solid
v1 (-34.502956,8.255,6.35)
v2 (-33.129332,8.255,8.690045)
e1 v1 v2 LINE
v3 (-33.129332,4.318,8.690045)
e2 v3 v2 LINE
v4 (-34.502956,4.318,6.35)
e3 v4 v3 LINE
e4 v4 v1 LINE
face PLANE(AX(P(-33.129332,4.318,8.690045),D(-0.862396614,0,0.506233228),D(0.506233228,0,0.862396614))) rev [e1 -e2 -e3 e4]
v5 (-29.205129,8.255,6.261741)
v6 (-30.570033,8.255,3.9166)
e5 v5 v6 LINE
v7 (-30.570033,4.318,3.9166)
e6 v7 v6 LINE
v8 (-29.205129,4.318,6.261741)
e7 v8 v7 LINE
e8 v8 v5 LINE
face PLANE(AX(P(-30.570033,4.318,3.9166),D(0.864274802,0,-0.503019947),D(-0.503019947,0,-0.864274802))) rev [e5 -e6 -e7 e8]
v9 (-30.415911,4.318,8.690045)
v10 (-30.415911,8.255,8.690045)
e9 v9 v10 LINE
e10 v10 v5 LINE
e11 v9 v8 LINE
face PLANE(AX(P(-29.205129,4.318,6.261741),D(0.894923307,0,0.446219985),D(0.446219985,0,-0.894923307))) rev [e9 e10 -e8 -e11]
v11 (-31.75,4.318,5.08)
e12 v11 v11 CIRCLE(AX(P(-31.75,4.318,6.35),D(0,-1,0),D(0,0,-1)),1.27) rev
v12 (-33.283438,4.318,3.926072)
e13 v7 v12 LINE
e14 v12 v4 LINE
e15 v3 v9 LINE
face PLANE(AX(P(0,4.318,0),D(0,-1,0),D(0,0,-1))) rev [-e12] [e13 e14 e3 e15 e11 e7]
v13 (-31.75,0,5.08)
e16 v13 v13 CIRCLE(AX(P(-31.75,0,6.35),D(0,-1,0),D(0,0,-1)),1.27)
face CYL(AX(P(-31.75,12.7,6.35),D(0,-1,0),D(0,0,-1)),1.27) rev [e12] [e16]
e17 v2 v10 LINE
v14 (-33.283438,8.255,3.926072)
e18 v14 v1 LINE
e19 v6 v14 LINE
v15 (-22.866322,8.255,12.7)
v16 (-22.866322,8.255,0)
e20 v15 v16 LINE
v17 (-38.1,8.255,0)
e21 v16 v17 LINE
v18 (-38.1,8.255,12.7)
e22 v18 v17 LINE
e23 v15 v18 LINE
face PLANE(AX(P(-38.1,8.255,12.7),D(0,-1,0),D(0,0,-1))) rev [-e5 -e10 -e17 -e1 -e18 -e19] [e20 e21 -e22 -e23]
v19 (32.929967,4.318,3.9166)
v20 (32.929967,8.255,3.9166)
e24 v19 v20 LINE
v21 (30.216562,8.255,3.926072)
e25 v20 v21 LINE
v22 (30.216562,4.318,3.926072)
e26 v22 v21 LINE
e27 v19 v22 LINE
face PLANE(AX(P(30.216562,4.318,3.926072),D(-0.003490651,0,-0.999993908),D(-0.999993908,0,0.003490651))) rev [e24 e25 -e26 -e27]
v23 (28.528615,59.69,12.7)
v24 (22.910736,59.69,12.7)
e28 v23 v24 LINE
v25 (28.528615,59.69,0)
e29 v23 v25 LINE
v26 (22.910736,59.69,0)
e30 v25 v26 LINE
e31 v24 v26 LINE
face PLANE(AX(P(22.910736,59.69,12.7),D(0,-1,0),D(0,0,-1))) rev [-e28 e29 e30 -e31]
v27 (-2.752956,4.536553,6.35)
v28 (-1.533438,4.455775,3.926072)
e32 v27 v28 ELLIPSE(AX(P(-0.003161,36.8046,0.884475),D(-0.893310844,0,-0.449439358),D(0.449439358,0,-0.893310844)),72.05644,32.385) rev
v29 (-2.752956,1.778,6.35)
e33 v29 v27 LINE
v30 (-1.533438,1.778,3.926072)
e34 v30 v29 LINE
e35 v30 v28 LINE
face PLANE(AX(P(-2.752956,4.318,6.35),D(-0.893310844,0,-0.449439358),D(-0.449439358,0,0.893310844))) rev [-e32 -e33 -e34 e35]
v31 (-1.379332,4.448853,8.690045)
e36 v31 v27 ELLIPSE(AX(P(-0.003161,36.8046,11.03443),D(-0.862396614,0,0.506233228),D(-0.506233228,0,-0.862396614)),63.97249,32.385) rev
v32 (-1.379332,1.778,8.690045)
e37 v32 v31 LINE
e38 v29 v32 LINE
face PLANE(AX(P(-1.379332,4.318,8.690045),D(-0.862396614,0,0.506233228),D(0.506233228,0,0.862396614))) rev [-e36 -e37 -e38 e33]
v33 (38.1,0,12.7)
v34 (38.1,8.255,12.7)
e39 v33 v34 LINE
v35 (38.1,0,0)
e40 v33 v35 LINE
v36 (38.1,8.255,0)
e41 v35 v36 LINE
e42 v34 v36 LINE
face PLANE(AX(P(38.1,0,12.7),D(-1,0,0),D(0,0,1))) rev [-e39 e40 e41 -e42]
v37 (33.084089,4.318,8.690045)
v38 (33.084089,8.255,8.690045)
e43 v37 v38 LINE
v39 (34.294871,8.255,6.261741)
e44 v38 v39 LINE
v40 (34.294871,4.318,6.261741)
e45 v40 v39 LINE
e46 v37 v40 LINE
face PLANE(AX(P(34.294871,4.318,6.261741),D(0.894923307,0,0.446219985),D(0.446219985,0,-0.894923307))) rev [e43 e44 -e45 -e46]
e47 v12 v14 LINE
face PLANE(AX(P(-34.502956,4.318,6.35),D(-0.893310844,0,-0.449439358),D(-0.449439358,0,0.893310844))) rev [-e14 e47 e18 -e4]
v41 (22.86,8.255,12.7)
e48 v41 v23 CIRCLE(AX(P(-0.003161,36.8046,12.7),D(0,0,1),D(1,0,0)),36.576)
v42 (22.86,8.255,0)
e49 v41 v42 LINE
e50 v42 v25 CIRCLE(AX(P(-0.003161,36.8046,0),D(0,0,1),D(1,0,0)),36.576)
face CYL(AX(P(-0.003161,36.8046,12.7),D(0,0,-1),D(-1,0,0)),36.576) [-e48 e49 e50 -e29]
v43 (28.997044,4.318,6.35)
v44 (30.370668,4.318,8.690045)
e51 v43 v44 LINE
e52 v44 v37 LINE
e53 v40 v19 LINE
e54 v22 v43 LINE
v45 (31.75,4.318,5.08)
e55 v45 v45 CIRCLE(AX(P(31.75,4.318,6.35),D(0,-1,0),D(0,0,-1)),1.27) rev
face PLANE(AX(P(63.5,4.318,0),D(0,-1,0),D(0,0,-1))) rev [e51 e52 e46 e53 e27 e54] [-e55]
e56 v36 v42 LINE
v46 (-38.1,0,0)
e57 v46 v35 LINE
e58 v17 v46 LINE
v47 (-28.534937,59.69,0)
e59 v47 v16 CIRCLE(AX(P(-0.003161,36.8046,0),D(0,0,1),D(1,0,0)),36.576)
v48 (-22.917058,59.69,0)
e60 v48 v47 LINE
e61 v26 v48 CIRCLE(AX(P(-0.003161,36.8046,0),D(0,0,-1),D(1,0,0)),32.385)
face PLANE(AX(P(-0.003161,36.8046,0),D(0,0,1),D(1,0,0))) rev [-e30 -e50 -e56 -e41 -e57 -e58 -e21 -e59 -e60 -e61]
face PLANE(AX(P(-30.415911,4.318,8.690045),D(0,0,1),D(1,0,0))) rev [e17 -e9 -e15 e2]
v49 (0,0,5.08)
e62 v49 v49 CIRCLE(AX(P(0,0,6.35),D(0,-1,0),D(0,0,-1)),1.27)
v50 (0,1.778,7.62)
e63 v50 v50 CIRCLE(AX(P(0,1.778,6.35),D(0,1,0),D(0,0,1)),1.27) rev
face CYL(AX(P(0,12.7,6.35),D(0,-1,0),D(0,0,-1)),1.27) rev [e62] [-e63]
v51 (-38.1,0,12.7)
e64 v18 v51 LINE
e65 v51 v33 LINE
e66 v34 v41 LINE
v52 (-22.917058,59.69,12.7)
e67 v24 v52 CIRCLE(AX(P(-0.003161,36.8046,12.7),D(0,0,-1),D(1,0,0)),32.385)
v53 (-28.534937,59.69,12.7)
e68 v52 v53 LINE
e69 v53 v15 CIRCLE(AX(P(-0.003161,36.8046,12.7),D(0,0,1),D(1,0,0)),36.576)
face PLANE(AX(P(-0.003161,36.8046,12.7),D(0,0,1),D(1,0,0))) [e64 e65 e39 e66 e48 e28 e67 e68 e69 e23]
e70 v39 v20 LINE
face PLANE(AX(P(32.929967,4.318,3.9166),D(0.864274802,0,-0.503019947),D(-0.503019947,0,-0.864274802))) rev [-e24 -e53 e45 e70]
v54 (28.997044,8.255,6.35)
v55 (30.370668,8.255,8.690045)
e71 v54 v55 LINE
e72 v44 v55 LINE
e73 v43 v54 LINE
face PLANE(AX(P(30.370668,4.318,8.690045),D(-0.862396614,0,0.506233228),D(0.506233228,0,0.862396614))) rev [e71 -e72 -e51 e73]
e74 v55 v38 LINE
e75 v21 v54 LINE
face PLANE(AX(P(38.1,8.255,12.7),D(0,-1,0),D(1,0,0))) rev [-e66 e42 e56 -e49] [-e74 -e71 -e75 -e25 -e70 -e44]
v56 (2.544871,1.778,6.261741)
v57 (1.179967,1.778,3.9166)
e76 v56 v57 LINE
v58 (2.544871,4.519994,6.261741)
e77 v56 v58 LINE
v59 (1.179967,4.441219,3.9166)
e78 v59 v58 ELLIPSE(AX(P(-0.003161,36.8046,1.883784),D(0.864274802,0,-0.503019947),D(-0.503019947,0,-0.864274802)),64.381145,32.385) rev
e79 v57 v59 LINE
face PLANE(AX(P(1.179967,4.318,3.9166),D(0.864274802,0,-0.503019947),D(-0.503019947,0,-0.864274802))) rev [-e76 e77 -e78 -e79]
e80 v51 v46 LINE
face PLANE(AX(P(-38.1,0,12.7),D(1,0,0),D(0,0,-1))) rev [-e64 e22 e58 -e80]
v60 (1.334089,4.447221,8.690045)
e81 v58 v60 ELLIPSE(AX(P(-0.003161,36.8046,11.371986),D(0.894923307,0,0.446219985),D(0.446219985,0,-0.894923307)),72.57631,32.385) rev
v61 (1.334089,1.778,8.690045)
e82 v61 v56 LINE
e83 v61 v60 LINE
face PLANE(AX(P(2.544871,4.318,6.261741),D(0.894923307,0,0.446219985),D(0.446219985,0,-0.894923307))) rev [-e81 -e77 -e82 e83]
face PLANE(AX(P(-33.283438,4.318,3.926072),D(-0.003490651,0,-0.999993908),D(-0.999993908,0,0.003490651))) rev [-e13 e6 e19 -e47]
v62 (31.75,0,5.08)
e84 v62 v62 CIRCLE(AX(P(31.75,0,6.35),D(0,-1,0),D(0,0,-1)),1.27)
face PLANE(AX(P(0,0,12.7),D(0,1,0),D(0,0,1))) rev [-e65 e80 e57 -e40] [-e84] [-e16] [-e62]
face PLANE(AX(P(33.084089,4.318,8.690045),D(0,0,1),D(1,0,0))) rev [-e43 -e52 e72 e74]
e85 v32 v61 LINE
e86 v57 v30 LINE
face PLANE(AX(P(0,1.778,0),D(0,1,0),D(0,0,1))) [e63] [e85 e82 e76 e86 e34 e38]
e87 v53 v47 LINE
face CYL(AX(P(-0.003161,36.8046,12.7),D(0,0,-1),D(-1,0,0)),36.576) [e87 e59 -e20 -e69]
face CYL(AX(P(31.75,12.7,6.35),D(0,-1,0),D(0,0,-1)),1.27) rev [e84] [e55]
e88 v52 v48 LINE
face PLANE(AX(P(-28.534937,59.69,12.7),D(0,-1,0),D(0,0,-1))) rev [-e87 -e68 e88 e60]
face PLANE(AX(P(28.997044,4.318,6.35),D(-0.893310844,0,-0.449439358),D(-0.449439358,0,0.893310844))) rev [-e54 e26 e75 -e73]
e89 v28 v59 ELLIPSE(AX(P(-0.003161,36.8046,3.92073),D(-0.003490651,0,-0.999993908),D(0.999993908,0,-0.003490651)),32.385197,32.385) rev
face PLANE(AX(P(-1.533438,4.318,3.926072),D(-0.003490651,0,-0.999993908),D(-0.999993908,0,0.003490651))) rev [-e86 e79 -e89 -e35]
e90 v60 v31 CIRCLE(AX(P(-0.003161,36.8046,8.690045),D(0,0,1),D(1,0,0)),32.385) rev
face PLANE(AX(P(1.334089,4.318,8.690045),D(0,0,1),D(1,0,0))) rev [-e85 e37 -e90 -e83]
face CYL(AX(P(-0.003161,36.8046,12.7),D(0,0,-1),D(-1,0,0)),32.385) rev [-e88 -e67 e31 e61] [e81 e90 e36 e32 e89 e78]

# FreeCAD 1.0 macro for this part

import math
import FreeCAD as App
import Part
import Sketcher

V = App.Vector
Q = App.Units.Quantity

doc = App.newDocument("Part")
params = doc.addObject("Spreadsheet::Sheet", "Params")
for row, (alias, value) in enumerate([
    ("sketch1_width", "3 in"),
    ("sketch1_radius", "1.44 in"),
    ("sketch1_width2", "0.6 in"),
    ("sketch1_radius2", "1.275 in"),
    ("sketch1_height", "0.325 in"),
    ("pad1_length", "0.5 in"),
    ("sketch2_diameter", "0.1 in"),
    ("pocket1_length", "0.5 in"),
    ("pocket2_length", "0.155 in"),
    ("linearpattern_pitch", "1.25 in"),
    ("pocket3_length", "0.1 in"),
], start=1):
    params.set(f"A{row}", alias)
    params.set(f"B{row}", "=" + value)
    params.setAlias(f"B{row}", alias)

body = doc.addObject("PartDesign::Body", "Body")

sketch1 = body.newObject("Sketcher::SketchObject", "Sketch")
sketch1.AttachmentSupport = (doc.getObject("XY_Plane"), [""])
sketch1.MapMode = "FlatFace"
sketch1.addGeometry([
    Part.LineSegment(V(38, 0, 0), V(38, 8, 0)),
    Part.LineSegment(V(38, 8, 0), V(23, 8, 0)),
    Part.ArcOfCircle(Part.Circle(V(0, 37, 0), V(0, 0, 1), 37), math.radians(-51), math.radians(39)),
    Part.LineSegment(V(29, 60, 0), V(23, 60, 0)),
    Part.ArcOfCircle(Part.Circle(V(0, 37, 0), V(0, 0, 1), 32), math.radians(135), math.radians(405)),
    Part.LineSegment(V(-23, 60, 0), V(-29, 60, 0)),
    Part.ArcOfCircle(Part.Circle(V(0, 37, 0), V(0, 0, 1), 37), math.radians(141), math.radians(231)),
    Part.LineSegment(V(-23, 8, 0), V(-38, 8, 0)),
    Part.LineSegment(V(-38, 8, 0), V(-38, 0, 0)),
    Part.LineSegment(V(-38, 0, 0), V(38, 0, 0)),
], False)
sketch1.addConstraint([
    Sketcher.Constraint("Coincident", 0, 2, 1, 1),
    Sketcher.Constraint("Coincident", 1, 2, 2, 1),
    Sketcher.Constraint("Coincident", 2, 2, 3, 1),
    Sketcher.Constraint("Coincident", 3, 2, 4, 2),
    Sketcher.Constraint("Coincident", 4, 1, 5, 1),
    Sketcher.Constraint("Coincident", 5, 2, 6, 1),
    Sketcher.Constraint("Coincident", 6, 2, 7, 1),
    Sketcher.Constraint("Coincident", 7, 2, 8, 1),
    Sketcher.Constraint("Coincident", 8, 2, 9, 1),
    Sketcher.Constraint("Coincident", 9, 2, 0, 1),
    Sketcher.Constraint("Vertical", 0),
    Sketcher.Constraint("Horizontal", 1),
    Sketcher.Constraint("Horizontal", 3),
    Sketcher.Constraint("Horizontal", 5),
    Sketcher.Constraint("Horizontal", 7),
    Sketcher.Constraint("Vertical", 8),
    Sketcher.Constraint("Horizontal", 9),
    Sketcher.Constraint("Coincident", 4, 3, 2, 3),
    Sketcher.Constraint("Coincident", 6, 3, 2, 3),
    Sketcher.Constraint("Equal", 2, 6),
    Sketcher.Constraint("Symmetric", 8, 2, 9, 2, -1, 1),
    Sketcher.Constraint("Horizontal", 3, 2, 4, 1),
    Sketcher.Constraint("Horizontal", 1, 2, 6, 2),
    Sketcher.Constraint("DistanceX", 9, 1, 9, 2, Q("3 in")),
    Sketcher.Constraint("Radius", 2, Q("1.44 in")),
    Sketcher.Constraint("DistanceX", 1, 2, 1, 1, Q("0.6 in")),
    Sketcher.Constraint("Radius", 4, Q("1.275 in")),
    Sketcher.Constraint("DistanceY", 0, 1, 0, 2, Q("0.325 in")),
    Sketcher.Constraint("DistanceY", -1, 1, 2, 2, Q("2.35 in")),
    Sketcher.Constraint("DistanceY", -1, 1, 2, 3, Q("1.449 in")),
])
sketch1.setExpression("Constraints[23]", "Params.sketch1_width")
sketch1.setExpression("Constraints[24]", "Params.sketch1_radius")
sketch1.setExpression("Constraints[25]", "Params.sketch1_width2")
sketch1.setExpression("Constraints[26]", "Params.sketch1_radius2")
sketch1.setExpression("Constraints[27]", "Params.sketch1_height")
pad1 = body.newObject("PartDesign::Pad", "Pad")
pad1.Profile = sketch1
pad1.setExpression("Length", "Params.pad1_length")

sketch2 = body.newObject("Sketcher::SketchObject", "Sketch001")
sketch2.AttachmentSupport = (doc.getObject("XZ_Plane"), [""])
sketch2.MapMode = "FlatFace"
sketch2.addGeometry([
    Part.Circle(V(0, 6.3, 0), V(0, 0, 1), 1.3),
    Part.Circle(V(31.8, 6.3, 0), V(0, 0, 1), 1.3),
    Part.Circle(V(-31.8, 6.3, 0), V(0, 0, 1), 1.3),
], False)
sketch2.addConstraint([
    Sketcher.Constraint("Equal", 0, 1),
    Sketcher.Constraint("Equal", 1, 2),
    Sketcher.Constraint("Symmetric", 1, 3, 2, 3, -2),
    Sketcher.Constraint("PointOnObject", 0, 3, -2),
    Sketcher.Constraint("Horizontal", 0, 3, 1, 3),
    Sketcher.Constraint("Diameter", 0, Q("0.1 in")),
    Sketcher.Constraint("DistanceX", 2, 3, 1, 3, Q("2.5 in")),
    Sketcher.Constraint("DistanceY", -1, 1, 0, 3, Q("0.25 in")),
])
sketch2.setExpression("Constraints[5]", "Params.sketch2_diameter")
pocket1 = body.newObject("PartDesign::Pocket", "Pocket")
pocket1.Profile = sketch2
pocket1.setExpression("Length", "Params.pocket1_length")

sketch3 = body.newObject("Sketcher::SketchObject", "Sketch002")
sketch3.AttachmentSupport = (doc.getObject("XZ_Plane"), [""])
sketch3.MapMode = "FlatFace"
sketch3.AttachmentOffset = App.Placement(V(0, 0, -0.325 * 25.4), App.Rotation())
sketch3.addGeometry([
    Part.LineSegment(V(-33.1, 8.7, 0), V(-30.4, 8.7, 0)),
    Part.LineSegment(V(-30.4, 8.7, 0), V(-29.2, 6.3, 0)),
    Part.LineSegment(V(-29.2, 6.3, 0), V(-30.6, 3.9, 0)),
    Part.LineSegment(V(-30.6, 3.9, 0), V(-33.3, 3.9, 0)),
    Part.LineSegment(V(-33.3, 3.9, 0), V(-34.5, 6.3, 0)),
    Part.LineSegment(V(-34.5, 6.3, 0), V(-33.1, 8.7, 0)),
], False)
sketch3.addConstraint([
    Sketcher.Constraint("Coincident", 0, 2, 1, 1),
    Sketcher.Constraint("Coincident", 1, 2, 2, 1),
    Sketcher.Constraint("Coincident", 2, 2, 3, 1),
    Sketcher.Constraint("Coincident", 3, 2, 4, 1),
    Sketcher.Constraint("Coincident", 4, 2, 5, 1),
    Sketcher.Constraint("Coincident", 5, 2, 0, 1),
    Sketcher.Constraint("Horizontal", 0),
    Sketcher.Constraint("Equal", 1, 2),
    Sketcher.Constraint("Equal", 2, 3),
    Sketcher.Constraint("Equal", 3, 4),
    Sketcher.Constraint("Equal", 4, 5),
    Sketcher.Constraint("Angle", 2, Q("-120.2 deg")),
    Sketcher.Constraint("Angle", 3, Q("179.8 deg")),
    Sketcher.Constraint("DistanceY", -1, 1, 4, 2, Q("0.25 in")),
    Sketcher.Constraint("DistanceX", 0, 1, 0, 2, 2.713421),
    Sketcher.Constraint("DistanceY", -1, 1, 2, 2, 3.9166),
    Sketcher.Constraint("DistanceX", 5, 2, 2, 2, 2.559299),
    Sketcher.Constraint("DistanceX", 0, 2, -1, 1, 30.415911),
])
pocket2 = body.newObject("PartDesign::Pocket", "Pocket001")
pocket2.Profile = sketch3
pocket2.setExpression("Length", "Params.pocket2_length")
pocket2.Reversed = True
doc.recompute()

linearpattern = body.newObject("PartDesign::LinearPattern", "LinearPattern")
linearpattern.Originals = [pocket2]
linearpattern.Direction = (doc.getObject("X_Axis"), [""])
linearpattern.Mode = "offset"
linearpattern.setExpression("Offset", "Params.linearpattern_pitch")
linearpattern.Occurrences = 3
body.Tip = linearpattern

sketch4 = body.newObject("Sketcher::SketchObject", "Sketch003")
sketch4.AttachmentSupport = (doc.getObject("XZ_Plane"), [""])
sketch4.MapMode = "FlatFace"
sketch4.AttachmentOffset = App.Placement(V(0, 0, -0.17 * 25.4), App.Rotation())
sketch4.addGeometry([
    Part.LineSegment(V(-1.4, 8.7, 0), V(1.3, 8.7, 0)),
    Part.LineSegment(V(1.3, 8.7, 0), V(2.5, 6.3, 0)),
    Part.LineSegment(V(2.5, 6.3, 0), V(1.2, 3.9, 0)),
    Part.LineSegment(V(1.2, 3.9, 0), V(-1.5, 3.9, 0)),
    Part.LineSegment(V(-1.5, 3.9, 0), V(-2.8, 6.3, 0)),
    Part.LineSegment(V(-2.8, 6.3, 0), V(-1.4, 8.7, 0)),
], False)
sketch4.addConstraint([
    Sketcher.Constraint("Coincident", 0, 2, 1, 1),
    Sketcher.Constraint("Coincident", 1, 2, 2, 1),
    Sketcher.Constraint("Coincident", 2, 2, 3, 1),
    Sketcher.Constraint("Coincident", 3, 2, 4, 1),
    Sketcher.Constraint("Coincident", 4, 2, 5, 1),
    Sketcher.Constraint("Coincident", 5, 2, 0, 1),
    Sketcher.Constraint("Horizontal", 0),
    Sketcher.Constraint("Equal", 1, 2),
    Sketcher.Constraint("Equal", 2, 3),
    Sketcher.Constraint("Equal", 3, 4),
    Sketcher.Constraint("Equal", 4, 5),
    Sketcher.Constraint("Angle", 2, Q("-120.2 deg")),
    Sketcher.Constraint("Angle", 3, Q("179.8 deg")),
    Sketcher.Constraint("DistanceY", -1, 1, 4, 2, Q("0.25 in")),
    Sketcher.Constraint("DistanceX", 0, 1, 0, 2, 2.713421),
    Sketcher.Constraint("DistanceY", -1, 1, 2, 2, 3.9166),
    Sketcher.Constraint("DistanceX", 5, 2, 2, 2, 2.559299),
    Sketcher.Constraint("DistanceX", -1, 1, 0, 2, 1.334089),
])
pocket3 = body.newObject("PartDesign::Pocket", "Pocket002")
pocket3.Profile = sketch4
pocket3.setExpression("Length", "Params.pocket3_length")
pocket3.Reversed = True

doc.recompute()
